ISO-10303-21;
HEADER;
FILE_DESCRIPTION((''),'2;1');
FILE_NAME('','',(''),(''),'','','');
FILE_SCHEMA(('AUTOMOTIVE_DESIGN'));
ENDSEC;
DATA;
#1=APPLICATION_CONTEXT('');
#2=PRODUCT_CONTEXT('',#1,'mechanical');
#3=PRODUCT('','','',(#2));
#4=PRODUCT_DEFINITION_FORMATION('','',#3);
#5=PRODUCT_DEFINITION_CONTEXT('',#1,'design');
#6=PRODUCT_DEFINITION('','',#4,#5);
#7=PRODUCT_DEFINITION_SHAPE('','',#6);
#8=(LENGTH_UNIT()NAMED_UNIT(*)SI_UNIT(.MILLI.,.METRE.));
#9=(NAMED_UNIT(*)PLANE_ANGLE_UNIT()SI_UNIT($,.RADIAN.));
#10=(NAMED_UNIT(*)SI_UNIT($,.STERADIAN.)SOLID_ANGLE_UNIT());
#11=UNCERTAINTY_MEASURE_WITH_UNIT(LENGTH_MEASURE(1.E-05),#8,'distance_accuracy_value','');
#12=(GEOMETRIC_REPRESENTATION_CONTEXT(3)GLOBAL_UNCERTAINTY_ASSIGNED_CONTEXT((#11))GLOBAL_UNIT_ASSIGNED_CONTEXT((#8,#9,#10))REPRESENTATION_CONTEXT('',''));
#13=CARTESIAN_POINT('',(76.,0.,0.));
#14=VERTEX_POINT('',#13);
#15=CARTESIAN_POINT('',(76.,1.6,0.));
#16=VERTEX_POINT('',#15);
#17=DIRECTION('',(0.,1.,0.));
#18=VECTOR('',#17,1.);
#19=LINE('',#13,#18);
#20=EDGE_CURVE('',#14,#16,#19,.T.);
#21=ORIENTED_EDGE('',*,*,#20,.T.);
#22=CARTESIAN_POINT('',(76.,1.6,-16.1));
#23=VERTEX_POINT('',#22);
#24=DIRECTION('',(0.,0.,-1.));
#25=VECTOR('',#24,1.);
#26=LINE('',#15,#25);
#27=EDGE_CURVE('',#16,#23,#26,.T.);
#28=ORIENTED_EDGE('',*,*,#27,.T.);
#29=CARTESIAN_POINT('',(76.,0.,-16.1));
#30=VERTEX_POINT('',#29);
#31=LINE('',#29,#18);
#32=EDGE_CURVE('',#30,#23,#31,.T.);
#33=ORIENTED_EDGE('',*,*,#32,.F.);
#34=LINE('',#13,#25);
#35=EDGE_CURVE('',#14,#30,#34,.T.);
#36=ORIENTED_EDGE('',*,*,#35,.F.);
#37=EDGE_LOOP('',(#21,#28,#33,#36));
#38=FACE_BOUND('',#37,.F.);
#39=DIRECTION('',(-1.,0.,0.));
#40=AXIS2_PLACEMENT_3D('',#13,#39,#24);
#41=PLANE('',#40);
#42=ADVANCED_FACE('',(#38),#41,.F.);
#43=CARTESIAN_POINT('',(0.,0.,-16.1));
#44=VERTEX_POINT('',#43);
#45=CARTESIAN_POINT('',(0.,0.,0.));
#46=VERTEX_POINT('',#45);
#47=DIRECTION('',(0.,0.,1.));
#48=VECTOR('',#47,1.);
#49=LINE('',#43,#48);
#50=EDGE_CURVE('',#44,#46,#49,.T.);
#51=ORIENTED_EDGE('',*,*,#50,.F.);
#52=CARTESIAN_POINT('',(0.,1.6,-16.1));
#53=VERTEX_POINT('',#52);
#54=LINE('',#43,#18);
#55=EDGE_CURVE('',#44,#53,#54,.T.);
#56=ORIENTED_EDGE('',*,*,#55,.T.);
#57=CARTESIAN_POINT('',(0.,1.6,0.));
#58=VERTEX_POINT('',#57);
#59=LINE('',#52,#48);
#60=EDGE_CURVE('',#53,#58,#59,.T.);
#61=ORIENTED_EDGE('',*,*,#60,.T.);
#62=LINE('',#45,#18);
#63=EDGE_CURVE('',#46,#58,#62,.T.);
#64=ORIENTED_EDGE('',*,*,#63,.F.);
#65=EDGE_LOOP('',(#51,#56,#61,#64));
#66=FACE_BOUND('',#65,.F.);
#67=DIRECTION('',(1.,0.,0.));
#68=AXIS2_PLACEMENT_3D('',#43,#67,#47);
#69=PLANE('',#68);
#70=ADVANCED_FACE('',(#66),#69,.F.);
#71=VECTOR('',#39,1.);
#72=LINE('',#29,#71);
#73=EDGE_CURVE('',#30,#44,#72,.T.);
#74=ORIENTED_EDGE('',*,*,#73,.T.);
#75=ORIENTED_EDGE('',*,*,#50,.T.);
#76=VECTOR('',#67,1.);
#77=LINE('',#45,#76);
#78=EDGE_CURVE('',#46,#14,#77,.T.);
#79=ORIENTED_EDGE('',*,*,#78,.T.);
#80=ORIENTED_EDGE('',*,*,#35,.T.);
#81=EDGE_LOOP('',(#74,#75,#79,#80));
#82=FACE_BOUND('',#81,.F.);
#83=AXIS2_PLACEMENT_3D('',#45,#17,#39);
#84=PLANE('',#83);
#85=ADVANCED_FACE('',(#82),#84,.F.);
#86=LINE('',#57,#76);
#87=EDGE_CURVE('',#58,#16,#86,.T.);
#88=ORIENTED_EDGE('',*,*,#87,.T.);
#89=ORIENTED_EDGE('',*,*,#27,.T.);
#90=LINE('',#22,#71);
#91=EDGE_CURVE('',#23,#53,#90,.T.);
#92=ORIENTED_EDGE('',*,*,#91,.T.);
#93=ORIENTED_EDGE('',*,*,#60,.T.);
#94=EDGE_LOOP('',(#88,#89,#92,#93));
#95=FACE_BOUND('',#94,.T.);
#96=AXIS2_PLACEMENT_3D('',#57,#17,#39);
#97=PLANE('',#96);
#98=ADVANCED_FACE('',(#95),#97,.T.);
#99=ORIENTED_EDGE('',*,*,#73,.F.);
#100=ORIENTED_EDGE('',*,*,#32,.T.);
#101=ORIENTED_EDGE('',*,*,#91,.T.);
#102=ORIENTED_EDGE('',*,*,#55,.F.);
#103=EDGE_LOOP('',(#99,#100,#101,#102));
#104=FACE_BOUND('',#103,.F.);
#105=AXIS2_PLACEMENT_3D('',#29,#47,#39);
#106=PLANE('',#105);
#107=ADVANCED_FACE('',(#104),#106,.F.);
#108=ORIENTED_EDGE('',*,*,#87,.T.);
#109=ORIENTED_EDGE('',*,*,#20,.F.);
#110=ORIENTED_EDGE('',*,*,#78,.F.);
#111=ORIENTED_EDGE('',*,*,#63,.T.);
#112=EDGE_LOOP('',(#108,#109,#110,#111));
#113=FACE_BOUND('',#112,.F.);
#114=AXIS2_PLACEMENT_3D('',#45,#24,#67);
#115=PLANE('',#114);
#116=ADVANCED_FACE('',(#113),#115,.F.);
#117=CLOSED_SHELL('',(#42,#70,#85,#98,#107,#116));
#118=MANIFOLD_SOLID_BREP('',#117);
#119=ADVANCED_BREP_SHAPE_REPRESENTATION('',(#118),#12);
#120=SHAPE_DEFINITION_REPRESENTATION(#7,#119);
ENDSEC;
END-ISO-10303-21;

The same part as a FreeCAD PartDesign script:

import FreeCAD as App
import Part
import Sketcher

V = App.Vector

doc = App.newDocument("Part")
body = doc.addObject("PartDesign::Body", "Body")

sketch1 = body.newObject("Sketcher::SketchObject", "Sketch")
sketch1.AttachmentSupport = (doc.getObject("XZ_Plane"), [""])
sketch1.MapMode = "FlatFace"
sketch1.addGeometry(Part.LineSegment(V(0, -16, 0), V(0, 0, 0)), False)
sketch1.addGeometry(Part.LineSegment(V(0, 0, 0), V(76, 0, 0)), False)
sketch1.addGeometry(Part.LineSegment(V(76, 0, 0), V(76, -16, 0)), False)
sketch1.addGeometry(Part.LineSegment(V(76, -16, 0), V(0, -16, 0)), False)
sketch1.addConstraint(Sketcher.Constraint("Coincident", 0, 2, 1, 1))
sketch1.addConstraint(Sketcher.Constraint("Coincident", 1, 2, 2, 1))
sketch1.addConstraint(Sketcher.Constraint("Coincident", 2, 2, 3, 1))
sketch1.addConstraint(Sketcher.Constraint("Coincident", 3, 2, 0, 1))
sketch1.addConstraint(Sketcher.Constraint("Vertical", 0))
sketch1.addConstraint(Sketcher.Constraint("Horizontal", 1))
sketch1.addConstraint(Sketcher.Constraint("Vertical", 2))
sketch1.addConstraint(Sketcher.Constraint("Horizontal", 3))
sketch1.addConstraint(Sketcher.Constraint("Coincident", 0, 2, -1, 1))
sketch1.addConstraint(Sketcher.Constraint("DistanceX", 1, 1, 1, 2, 76.0))
sketch1.addConstraint(Sketcher.Constraint("DistanceY", 0, 1, 0, 2, 16.1))
pad1 = body.newObject("PartDesign::Pad", "Pad")
pad1.Profile = sketch1
pad1.Length = 1.6
pad1.Reversed = True

doc.recompute()
